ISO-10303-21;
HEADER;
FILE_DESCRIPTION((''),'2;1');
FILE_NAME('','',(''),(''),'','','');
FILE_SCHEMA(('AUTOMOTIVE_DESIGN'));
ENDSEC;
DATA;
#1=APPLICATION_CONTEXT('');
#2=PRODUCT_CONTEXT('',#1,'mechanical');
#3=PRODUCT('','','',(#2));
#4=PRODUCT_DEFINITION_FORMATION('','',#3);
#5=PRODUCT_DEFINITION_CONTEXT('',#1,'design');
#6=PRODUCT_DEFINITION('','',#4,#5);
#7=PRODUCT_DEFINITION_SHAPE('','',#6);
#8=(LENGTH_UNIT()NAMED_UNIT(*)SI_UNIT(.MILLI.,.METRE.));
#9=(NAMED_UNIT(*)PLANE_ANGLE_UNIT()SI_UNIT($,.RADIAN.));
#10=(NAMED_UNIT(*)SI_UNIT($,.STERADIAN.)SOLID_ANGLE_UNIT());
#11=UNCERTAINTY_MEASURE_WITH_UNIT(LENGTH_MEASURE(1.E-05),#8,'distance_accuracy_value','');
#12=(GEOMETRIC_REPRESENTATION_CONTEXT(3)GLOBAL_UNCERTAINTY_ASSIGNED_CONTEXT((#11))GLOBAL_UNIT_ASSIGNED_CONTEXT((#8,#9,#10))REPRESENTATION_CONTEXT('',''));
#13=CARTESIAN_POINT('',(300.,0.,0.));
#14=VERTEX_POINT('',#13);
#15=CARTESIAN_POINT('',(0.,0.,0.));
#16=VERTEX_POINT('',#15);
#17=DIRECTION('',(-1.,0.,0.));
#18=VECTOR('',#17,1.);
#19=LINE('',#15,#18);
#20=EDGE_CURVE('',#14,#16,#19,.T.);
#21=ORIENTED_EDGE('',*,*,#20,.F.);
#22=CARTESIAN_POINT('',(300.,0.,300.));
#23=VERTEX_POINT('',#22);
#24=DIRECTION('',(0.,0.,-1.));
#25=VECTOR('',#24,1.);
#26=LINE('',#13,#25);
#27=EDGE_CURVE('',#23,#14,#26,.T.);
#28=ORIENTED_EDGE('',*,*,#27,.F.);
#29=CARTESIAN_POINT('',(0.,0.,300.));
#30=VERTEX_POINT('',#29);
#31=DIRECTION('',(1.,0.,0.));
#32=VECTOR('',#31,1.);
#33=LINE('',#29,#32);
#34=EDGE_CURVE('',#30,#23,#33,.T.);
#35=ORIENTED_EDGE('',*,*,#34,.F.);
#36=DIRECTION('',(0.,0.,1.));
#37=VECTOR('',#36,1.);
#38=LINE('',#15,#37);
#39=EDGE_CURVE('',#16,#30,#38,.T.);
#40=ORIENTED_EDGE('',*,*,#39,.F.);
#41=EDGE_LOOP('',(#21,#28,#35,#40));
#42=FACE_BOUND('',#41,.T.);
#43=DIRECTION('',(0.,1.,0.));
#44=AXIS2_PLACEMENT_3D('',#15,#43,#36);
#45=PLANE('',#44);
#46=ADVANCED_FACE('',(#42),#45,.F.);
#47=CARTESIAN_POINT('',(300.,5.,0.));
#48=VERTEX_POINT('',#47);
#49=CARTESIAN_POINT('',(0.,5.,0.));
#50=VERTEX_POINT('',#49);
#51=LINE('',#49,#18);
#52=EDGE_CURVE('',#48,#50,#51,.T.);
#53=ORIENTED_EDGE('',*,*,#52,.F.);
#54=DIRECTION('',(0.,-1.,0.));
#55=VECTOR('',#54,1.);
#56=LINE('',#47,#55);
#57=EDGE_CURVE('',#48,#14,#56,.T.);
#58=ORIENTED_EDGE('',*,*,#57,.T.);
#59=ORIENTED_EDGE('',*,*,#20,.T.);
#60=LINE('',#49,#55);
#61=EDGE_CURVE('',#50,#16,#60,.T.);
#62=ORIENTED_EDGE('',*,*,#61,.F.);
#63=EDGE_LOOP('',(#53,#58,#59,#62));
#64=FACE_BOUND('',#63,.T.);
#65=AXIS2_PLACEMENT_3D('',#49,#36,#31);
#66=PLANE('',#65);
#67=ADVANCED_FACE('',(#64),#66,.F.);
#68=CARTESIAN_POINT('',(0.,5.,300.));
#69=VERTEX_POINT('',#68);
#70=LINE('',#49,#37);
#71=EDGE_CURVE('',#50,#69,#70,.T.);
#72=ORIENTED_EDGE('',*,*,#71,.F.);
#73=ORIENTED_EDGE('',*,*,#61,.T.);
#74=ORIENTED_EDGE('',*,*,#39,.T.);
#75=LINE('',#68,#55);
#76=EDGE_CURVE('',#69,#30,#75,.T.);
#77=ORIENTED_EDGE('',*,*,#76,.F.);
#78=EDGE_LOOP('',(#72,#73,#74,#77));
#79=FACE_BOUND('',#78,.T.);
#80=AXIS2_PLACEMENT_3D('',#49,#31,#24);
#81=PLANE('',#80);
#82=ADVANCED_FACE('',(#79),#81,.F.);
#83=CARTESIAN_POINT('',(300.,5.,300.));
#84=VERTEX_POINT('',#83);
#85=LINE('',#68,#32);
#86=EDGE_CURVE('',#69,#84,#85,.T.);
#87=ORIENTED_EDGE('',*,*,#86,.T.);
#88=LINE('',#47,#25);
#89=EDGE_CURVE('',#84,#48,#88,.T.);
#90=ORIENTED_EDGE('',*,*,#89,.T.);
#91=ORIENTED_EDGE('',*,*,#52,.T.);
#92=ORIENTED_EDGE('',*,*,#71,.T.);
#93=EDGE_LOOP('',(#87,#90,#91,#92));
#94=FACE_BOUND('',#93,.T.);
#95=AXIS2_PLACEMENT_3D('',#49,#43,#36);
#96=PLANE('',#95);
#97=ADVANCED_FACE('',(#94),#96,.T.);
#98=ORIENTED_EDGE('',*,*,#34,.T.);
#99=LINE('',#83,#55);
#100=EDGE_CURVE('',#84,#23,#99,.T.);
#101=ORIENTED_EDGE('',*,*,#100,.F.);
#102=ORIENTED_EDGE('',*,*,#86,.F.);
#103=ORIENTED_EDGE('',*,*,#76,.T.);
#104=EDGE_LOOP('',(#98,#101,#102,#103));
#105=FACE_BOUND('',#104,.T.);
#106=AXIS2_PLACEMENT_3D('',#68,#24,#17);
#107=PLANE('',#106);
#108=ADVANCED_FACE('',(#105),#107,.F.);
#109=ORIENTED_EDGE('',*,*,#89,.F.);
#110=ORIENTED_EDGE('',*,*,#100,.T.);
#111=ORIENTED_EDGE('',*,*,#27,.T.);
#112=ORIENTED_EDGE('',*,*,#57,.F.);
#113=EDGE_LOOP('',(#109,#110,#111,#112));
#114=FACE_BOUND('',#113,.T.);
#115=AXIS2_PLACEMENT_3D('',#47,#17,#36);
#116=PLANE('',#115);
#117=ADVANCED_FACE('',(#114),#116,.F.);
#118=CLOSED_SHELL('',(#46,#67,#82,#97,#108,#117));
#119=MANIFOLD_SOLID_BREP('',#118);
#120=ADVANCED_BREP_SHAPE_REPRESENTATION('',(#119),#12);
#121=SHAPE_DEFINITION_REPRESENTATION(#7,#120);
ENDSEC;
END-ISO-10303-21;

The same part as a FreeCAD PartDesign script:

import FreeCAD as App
import Part
import Sketcher

doc = App.newDocument("Part")
body = doc.addObject("PartDesign::Body", "Body")

sketch1 = doc.addObject("Sketcher::SketchObject", "Sketch")
body.addObject(sketch1)
sketch1.AttachmentSupport = (doc.XZ_Plane, [""])
sketch1.MapMode = "FlatFace"
sketch1.addGeometry([
    Part.LineSegment(App.Vector(0, 0, 0), App.Vector(0, 300, 0)),
    Part.LineSegment(App.Vector(0, 300, 0), App.Vector(300, 300, 0)),
    Part.LineSegment(App.Vector(300, 300, 0), App.Vector(300, 0, 0)),
    Part.LineSegment(App.Vector(300, 0, 0), App.Vector(0, 0, 0)),
], False)
sketch1.addConstraint([
    Sketcher.Constraint("Coincident", 0, 2, 1, 1),
    Sketcher.Constraint("Coincident", 1, 2, 2, 1),
    Sketcher.Constraint("Coincident", 2, 2, 3, 1),
    Sketcher.Constraint("Coincident", 3, 2, 0, 1),
    Sketcher.Constraint("Vertical", 0),
    Sketcher.Constraint("Horizontal", 1),
    Sketcher.Constraint("Vertical", 2),
    Sketcher.Constraint("Horizontal", 3),
    Sketcher.Constraint("Coincident", 3, 2, -1, 1),
    Sketcher.Constraint("Equal", 3, 0),
    Sketcher.Constraint("DistanceX", 1, 1, 1, 2, 300.0),
])
pad1 = doc.addObject("PartDesign::Pad", "Pad")
body.addObject(pad1)
pad1.Profile = sketch1
pad1.Length = 5
pad1.Reversed = True

doc.recompute()
